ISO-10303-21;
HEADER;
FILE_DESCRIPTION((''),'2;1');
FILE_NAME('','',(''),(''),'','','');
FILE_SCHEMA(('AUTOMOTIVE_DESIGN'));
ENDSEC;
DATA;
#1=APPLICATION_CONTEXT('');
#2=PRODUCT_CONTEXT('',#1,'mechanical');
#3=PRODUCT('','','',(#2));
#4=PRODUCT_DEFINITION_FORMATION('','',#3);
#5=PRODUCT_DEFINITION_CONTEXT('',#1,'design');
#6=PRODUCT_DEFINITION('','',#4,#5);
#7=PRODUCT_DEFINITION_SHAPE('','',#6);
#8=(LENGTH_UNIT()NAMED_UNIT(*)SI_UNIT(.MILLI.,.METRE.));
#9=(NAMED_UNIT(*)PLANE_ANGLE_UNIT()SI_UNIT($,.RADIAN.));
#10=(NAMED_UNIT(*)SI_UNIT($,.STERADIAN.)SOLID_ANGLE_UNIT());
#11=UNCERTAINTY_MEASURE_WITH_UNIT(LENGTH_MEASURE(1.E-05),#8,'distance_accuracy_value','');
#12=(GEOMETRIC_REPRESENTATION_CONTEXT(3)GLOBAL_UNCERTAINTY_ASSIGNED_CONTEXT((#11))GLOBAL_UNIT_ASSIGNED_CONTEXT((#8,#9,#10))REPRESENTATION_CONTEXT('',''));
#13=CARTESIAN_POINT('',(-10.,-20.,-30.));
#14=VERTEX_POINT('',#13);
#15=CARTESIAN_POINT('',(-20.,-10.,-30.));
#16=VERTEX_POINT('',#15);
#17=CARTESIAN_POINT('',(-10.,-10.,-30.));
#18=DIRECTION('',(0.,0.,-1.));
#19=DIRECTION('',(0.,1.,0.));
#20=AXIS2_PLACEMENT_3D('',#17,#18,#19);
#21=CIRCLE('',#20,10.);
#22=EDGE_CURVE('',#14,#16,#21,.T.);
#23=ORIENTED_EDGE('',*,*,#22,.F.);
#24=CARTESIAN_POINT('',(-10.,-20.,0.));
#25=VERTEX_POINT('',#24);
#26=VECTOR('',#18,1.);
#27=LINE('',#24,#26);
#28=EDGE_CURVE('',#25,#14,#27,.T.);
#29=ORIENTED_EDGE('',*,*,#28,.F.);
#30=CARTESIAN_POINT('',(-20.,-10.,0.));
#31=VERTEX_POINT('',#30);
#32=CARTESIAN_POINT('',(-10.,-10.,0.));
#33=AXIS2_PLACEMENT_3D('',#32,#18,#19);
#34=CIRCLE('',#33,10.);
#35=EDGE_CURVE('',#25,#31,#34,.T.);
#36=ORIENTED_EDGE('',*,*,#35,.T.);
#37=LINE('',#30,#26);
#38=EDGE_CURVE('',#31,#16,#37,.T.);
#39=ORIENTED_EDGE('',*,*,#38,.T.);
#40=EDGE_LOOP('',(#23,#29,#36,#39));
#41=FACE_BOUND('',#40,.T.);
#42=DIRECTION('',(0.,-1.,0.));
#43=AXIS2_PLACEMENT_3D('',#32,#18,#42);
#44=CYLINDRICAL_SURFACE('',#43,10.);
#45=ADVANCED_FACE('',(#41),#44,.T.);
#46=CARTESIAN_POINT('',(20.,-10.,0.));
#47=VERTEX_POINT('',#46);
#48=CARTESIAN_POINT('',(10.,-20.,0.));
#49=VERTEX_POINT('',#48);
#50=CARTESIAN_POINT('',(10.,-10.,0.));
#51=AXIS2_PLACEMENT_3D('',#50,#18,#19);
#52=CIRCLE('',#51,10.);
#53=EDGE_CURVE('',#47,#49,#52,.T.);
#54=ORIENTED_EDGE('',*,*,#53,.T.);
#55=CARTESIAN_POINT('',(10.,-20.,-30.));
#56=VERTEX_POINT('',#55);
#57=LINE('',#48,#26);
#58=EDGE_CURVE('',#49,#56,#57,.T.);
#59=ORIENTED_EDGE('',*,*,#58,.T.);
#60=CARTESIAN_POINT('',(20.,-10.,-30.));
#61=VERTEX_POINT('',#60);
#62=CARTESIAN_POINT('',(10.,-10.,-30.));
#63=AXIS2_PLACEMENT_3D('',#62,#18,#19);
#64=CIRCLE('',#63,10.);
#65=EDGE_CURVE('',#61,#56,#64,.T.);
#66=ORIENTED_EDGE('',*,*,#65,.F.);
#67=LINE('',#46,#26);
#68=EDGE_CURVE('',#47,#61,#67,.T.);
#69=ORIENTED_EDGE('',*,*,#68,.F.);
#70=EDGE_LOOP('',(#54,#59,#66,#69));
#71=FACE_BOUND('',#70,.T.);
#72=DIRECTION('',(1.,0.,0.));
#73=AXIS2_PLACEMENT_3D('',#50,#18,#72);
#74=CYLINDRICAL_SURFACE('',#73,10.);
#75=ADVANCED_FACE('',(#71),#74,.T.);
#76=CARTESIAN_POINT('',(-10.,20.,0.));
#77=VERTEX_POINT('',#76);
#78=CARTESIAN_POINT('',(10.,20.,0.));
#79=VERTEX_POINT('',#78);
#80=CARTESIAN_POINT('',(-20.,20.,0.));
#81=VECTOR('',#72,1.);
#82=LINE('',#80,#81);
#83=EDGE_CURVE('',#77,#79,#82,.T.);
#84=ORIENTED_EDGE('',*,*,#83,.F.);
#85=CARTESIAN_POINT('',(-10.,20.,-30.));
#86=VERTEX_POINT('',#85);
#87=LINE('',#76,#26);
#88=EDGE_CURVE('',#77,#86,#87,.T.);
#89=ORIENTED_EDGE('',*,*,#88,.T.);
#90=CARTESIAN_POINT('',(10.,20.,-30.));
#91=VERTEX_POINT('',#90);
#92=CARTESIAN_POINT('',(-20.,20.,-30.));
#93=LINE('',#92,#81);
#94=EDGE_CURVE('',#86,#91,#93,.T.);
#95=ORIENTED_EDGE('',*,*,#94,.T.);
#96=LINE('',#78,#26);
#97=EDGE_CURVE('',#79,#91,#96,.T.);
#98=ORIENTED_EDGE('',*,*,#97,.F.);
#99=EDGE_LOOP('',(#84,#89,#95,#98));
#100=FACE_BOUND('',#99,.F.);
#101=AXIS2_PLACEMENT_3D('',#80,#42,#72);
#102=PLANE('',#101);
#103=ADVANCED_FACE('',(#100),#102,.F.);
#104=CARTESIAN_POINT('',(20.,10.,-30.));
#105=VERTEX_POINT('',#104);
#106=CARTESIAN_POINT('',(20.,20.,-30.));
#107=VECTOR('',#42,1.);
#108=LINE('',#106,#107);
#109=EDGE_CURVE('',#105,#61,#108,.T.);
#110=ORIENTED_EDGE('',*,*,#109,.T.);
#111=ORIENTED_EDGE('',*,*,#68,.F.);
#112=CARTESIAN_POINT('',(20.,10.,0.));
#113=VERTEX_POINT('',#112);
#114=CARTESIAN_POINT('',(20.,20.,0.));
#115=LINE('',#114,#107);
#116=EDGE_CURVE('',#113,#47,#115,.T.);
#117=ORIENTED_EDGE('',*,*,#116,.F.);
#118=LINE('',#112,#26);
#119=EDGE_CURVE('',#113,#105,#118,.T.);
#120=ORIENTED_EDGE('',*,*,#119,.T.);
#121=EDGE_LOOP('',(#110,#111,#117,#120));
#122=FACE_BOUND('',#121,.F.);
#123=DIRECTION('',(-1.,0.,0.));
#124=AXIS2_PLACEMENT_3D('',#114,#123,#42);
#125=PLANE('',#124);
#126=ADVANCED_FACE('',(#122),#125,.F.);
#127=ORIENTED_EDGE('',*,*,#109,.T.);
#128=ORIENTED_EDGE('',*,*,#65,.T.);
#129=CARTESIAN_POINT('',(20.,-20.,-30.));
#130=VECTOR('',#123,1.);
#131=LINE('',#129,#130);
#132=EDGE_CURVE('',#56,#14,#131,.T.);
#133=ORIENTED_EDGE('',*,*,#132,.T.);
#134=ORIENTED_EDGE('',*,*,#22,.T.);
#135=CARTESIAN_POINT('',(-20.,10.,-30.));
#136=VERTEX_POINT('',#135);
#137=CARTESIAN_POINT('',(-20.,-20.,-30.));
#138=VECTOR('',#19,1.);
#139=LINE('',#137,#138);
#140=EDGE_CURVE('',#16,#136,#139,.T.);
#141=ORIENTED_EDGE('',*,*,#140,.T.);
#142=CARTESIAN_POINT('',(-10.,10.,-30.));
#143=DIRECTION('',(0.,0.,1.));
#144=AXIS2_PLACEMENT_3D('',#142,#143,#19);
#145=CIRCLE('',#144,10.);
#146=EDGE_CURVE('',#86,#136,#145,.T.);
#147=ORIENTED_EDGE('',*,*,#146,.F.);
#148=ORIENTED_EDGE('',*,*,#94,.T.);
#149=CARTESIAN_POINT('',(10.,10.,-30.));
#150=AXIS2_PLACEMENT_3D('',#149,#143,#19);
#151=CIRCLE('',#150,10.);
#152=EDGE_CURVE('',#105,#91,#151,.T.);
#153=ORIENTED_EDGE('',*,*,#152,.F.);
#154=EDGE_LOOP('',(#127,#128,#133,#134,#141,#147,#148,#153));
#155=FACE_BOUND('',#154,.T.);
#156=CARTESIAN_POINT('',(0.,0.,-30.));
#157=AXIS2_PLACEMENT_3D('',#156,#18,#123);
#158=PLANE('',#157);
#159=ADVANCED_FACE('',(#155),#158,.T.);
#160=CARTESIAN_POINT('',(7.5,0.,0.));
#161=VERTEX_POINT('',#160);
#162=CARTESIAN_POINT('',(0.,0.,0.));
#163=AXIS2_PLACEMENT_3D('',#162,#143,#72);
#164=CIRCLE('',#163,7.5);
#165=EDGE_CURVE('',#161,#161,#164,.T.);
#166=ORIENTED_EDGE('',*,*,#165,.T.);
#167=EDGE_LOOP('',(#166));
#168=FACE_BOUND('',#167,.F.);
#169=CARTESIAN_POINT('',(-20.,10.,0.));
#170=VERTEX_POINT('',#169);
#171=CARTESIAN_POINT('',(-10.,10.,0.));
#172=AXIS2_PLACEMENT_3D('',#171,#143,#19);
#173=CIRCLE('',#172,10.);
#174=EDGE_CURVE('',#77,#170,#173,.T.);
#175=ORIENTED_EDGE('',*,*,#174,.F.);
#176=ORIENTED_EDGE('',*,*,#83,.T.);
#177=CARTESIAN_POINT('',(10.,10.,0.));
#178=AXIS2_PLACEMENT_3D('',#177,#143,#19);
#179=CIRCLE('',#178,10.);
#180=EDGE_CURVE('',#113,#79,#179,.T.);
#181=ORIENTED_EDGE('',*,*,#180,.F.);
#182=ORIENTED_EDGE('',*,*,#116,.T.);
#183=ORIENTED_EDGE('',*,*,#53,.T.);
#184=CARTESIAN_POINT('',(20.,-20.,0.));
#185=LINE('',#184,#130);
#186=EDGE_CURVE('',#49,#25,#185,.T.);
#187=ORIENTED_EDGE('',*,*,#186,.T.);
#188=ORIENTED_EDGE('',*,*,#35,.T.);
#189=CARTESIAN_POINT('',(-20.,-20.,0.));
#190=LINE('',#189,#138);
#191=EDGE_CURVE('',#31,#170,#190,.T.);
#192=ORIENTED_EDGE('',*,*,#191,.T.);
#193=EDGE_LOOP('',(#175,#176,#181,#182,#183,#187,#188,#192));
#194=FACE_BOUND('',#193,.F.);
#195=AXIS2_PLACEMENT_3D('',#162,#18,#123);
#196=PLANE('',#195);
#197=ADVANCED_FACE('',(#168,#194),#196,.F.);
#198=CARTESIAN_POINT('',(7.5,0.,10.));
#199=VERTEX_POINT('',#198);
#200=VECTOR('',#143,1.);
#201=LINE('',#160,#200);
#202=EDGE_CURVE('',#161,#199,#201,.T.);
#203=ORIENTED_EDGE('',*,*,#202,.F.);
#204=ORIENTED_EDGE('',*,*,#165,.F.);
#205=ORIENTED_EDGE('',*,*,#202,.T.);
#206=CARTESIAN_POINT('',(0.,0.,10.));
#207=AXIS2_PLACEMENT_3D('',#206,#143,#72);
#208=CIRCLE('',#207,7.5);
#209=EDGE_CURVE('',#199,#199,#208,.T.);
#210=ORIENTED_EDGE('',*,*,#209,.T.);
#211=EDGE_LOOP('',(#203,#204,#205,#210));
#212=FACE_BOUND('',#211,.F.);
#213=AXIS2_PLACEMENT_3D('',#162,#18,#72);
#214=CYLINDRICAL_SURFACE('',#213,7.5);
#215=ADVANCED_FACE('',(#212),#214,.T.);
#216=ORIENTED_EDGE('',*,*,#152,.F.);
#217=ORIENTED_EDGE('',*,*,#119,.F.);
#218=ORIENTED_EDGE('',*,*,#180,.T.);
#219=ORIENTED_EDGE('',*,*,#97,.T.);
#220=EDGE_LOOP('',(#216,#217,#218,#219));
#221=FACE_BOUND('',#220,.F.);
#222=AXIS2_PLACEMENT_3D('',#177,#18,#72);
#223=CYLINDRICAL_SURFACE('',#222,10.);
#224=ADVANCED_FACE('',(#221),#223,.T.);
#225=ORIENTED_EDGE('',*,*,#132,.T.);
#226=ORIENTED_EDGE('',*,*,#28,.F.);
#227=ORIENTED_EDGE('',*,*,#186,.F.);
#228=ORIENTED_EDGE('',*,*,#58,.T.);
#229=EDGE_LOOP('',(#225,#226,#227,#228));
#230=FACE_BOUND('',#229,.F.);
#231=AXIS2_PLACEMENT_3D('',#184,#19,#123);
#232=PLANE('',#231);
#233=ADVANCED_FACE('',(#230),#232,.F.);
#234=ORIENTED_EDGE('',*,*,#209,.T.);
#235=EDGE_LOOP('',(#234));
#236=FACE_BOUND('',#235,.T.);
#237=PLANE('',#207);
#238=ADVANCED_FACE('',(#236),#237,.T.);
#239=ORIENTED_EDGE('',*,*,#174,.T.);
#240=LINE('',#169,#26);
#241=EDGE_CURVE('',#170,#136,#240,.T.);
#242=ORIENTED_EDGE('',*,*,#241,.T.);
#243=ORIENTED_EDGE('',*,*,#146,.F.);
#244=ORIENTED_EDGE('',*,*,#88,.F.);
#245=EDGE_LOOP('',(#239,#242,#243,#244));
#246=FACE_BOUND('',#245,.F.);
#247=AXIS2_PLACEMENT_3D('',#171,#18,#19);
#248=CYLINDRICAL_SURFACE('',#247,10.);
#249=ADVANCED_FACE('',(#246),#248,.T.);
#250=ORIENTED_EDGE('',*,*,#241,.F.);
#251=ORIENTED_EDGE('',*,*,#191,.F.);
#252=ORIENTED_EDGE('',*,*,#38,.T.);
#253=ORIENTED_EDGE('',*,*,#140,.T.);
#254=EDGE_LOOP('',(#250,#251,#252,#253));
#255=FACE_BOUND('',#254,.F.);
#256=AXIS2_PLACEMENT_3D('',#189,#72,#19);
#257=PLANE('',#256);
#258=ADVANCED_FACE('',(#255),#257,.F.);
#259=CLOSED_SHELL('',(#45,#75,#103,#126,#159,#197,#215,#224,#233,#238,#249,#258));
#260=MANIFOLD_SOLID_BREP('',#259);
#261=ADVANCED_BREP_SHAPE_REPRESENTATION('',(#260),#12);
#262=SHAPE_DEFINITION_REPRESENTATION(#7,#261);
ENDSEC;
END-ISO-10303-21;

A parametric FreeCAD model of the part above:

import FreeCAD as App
import Part
import Sketcher

V = App.Vector


def edges_at(feature, points):
    """Names of the edges that pass closest to the given points."""
    edges = feature.Shape.Edges
    near = lambda p: min(range(len(edges)), key=lambda i: edges[i].distToShape(Part.Vertex(*p))[0])
    return sorted({f"Edge{near(p) + 1}" for p in points})

doc = App.newDocument("Part")
body = doc.addObject("PartDesign::Body", "Body")

# Sketch on XY plane
sketch1 = body.newObject("Sketcher::SketchObject", "Sketch")
sketch1.AttachmentSupport = (doc.getObject("XY_Plane"), [""])
sketch1.MapMode = "FlatFace"
sketch1.addGeometry(Part.Circle(V(0, 0, 0), V(0, 0, 1), 8), False)
sketch1.addConstraint(Sketcher.Constraint("Coincident", 0, 3, -1, 1))
sketch1.addConstraint(Sketcher.Constraint("Diameter", 0, 15.0))
pad1 = body.newObject("PartDesign::Pad", "Pad")
pad1.Profile = sketch1
pad1.Length = 10

# Sketch on XY plane
sketch2 = body.newObject("Sketcher::SketchObject", "Sketch001")
sketch2.AttachmentSupport = (doc.getObject("XY_Plane"), [""])
sketch2.MapMode = "FlatFace"
sketch2.addGeometry(Part.LineSegment(V(20, 20, 0), V(20, -20, 0)), False)
sketch2.addGeometry(Part.LineSegment(V(20, -20, 0), V(-20, -20, 0)), False)
sketch2.addGeometry(Part.LineSegment(V(-20, -20, 0), V(-20, 20, 0)), False)
sketch2.addGeometry(Part.LineSegment(V(-20, 20, 0), V(20, 20, 0)), False)
sketch2.addConstraint(Sketcher.Constraint("Coincident", 0, 2, 1, 1))
sketch2.addConstraint(Sketcher.Constraint("Coincident", 1, 2, 2, 1))
sketch2.addConstraint(Sketcher.Constraint("Coincident", 2, 2, 3, 1))
sketch2.addConstraint(Sketcher.Constraint("Coincident", 3, 2, 0, 1))
sketch2.addConstraint(Sketcher.Constraint("Vertical", 0))
sketch2.addConstraint(Sketcher.Constraint("Horizontal", 1))
sketch2.addConstraint(Sketcher.Constraint("Vertical", 2))
sketch2.addConstraint(Sketcher.Constraint("Horizontal", 3))
sketch2.addConstraint(Sketcher.Constraint("Symmetric", 0, 2, 2, 2, -1, 1))
sketch2.addConstraint(Sketcher.Constraint("Equal", 3, 0))
sketch2.addConstraint(Sketcher.Constraint("DistanceX", 1, 2, 1, 1, 40.0))
pad2 = body.newObject("PartDesign::Pad", "Pad001")
pad2.Profile = sketch2
pad2.Length = 30
pad2.Reversed = True
doc.recompute()

fillet = body.newObject("PartDesign::Fillet", "Fillet")
fillet.Base = (pad2, edges_at(pad2, [
    (-20, 20, -15),
    (-20, -20, -15),
    (20, -20, -15),
    (20, 20, -15),
]))
fillet.Radius = 10

doc.recompute()
